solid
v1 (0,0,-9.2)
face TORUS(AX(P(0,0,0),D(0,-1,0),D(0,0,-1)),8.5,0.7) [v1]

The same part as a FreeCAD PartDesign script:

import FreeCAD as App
import Part
import Sketcher

V = App.Vector
Q = App.Units.Quantity

doc = App.newDocument("Part")
body = doc.addObject("PartDesign::Body", "Body")

sketch1 = body.newObject("Sketcher::SketchObject", "Sketch")
sketch1.AttachmentSupport = (doc.getObject("XY_Plane"), [""])
sketch1.MapMode = "FlatFace"
sketch1.addGeometry(Part.Circle(V(8.5, 0, 0), V(0, 0, 1), 0.7), False)
sketch1.addConstraint([
    Sketcher.Constraint("PointOnObject", 0, 3, -1),
    Sketcher.Constraint("Diameter", 0, Q("1.4 mm")),
    Sketcher.Constraint("DistanceX", -1, 1, 0, 3, Q("8.5 mm")),
])
revolution = body.newObject("PartDesign::Revolution", "Revolution")
revolution.Profile = sketch1
revolution.ReferenceAxis = (sketch1, ["V_Axis"])
revolution.Angle = 360

doc.recompute()
